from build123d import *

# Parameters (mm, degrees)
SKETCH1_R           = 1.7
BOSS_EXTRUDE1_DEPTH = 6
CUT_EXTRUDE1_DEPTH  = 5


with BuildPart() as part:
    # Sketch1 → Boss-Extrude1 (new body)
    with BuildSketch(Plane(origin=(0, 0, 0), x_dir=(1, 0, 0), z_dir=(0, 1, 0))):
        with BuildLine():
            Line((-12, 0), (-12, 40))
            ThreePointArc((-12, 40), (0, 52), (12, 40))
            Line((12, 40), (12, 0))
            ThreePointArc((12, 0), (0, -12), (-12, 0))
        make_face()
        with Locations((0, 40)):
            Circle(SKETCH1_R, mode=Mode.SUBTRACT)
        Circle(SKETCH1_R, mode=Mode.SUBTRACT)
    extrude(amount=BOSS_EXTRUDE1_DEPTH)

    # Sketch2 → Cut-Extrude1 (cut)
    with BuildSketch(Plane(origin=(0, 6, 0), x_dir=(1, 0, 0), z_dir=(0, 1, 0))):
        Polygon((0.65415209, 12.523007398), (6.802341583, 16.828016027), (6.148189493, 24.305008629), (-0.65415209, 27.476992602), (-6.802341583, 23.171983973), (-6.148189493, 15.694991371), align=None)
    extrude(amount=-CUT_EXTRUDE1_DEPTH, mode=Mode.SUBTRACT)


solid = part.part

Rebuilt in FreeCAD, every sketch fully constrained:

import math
import FreeCAD as App
import Part
import Sketcher
from FreeCAD import Vector
Q = App.Units.Quantity

doc = App.newDocument("Part")
body = doc.addObject("PartDesign::Body", "Body")

# Sketch on XZ plane
sketch1 = body.newObject("Sketcher::SketchObject", "Sketch")
sketch1.AttachmentSupport = (doc.getObject("XZ_Plane"), [""])
sketch1.MapMode = "FlatFace"
sketch1.addGeometry(Part.LineSegment(Vector(-12, -40, 0), Vector(-12, 0, 0)), False)
sketch1.addGeometry(Part.ArcOfCircle(Part.Circle(Vector(0, 0, 0), Vector(0, 0, 1), 12), math.radians(0), math.radians(180)), False)
sketch1.addGeometry(Part.LineSegment(Vector(12, 0, 0), Vector(12, -40, 0)), False)
sketch1.addGeometry(Part.ArcOfCircle(Part.Circle(Vector(0, -40, 0), Vector(0, 0, 1), 12), math.radians(180), math.radians(360)), False)
sketch1.addGeometry(Part.Circle(Vector(0, 0, 0), Vector(0, 0, 1), 1.7), False)
sketch1.addGeometry(Part.Circle(Vector(0, -40, 0), Vector(0, 0, 1), 1.7), False)
sketch1.addConstraint(Sketcher.Constraint("Tangent", 0, 2, 1, 2))
sketch1.addConstraint(Sketcher.Constraint("Tangent", 1, 1, 2, 1))
sketch1.addConstraint(Sketcher.Constraint("Tangent", 2, 2, 3, 2))
sketch1.addConstraint(Sketcher.Constraint("Tangent", 3, 1, 0, 1))
sketch1.addConstraint(Sketcher.Constraint("Vertical", 0))
sketch1.addConstraint(Sketcher.Constraint("Vertical", 2))
sketch1.addConstraint(Sketcher.Constraint("Coincident", 1, 3, -1, 1))
sketch1.addConstraint(Sketcher.Constraint("Coincident", 4, 3, -1, 1))
sketch1.addConstraint(Sketcher.Constraint("Coincident", 5, 3, 3, 3))
sketch1.addConstraint(Sketcher.Constraint("Equal", 4, 5))
sketch1.addConstraint(Sketcher.Constraint("Radius", 1, 12.0))
sketch1.addConstraint(Sketcher.Constraint("Diameter", 4, 3.4))
sketch1.addConstraint(Sketcher.Constraint("DistanceY", 0, 1, 0, 2, 40.0))
pad1 = body.newObject("PartDesign::Pad", "Pad")
pad1.Profile = sketch1
pad1.Length = 6
pad1.Reversed = True

# Sketch on XZ plane
sketch2 = body.newObject("Sketcher::SketchObject", "Sketch001")
sketch2.AttachmentSupport = (doc.getObject("XZ_Plane"), [""])
sketch2.MapMode = "FlatFace"
sketch2.AttachmentOffset = App.Placement(Vector(0, 0, -6), App.Rotation())
sketch2.addGeometry(Part.LineSegment(Vector(1, -13, 0), Vector(7, -17, 0)), False)
sketch2.addGeometry(Part.LineSegment(Vector(7, -17, 0), Vector(6, -24, 0)), False)
sketch2.addGeometry(Part.LineSegment(Vector(6, -24, 0), Vector(-1, -27, 0)), False)
sketch2.addGeometry(Part.LineSegment(Vector(-1, -27, 0), Vector(-7, -23, 0)), False)
sketch2.addGeometry(Part.LineSegment(Vector(-7, -23, 0), Vector(-6, -16, 0)), False)
sketch2.addGeometry(Part.LineSegment(Vector(-6, -16, 0), Vector(1, -13, 0)), False)
sketch2.addConstraint(Sketcher.Constraint("Coincident", 0, 2, 1, 1))
sketch2.addConstraint(Sketcher.Constraint("Coincident", 1, 2, 2, 1))
sketch2.addConstraint(Sketcher.Constraint("Coincident", 2, 2, 3, 1))
sketch2.addConstraint(Sketcher.Constraint("Coincident", 3, 2, 4, 1))
sketch2.addConstraint(Sketcher.Constraint("Coincident", 4, 2, 5, 1))
sketch2.addConstraint(Sketcher.Constraint("Coincident", 5, 2, 0, 1))
sketch2.addConstraint(Sketcher.Constraint("Parallel", 0, 3))
sketch2.addConstraint(Sketcher.Constraint("Parallel", 1, 4))
sketch2.addConstraint(Sketcher.Constraint("Parallel", 2, 5))
sketch2.addConstraint(Sketcher.Constraint("Equal", 0, 1))
sketch2.addConstraint(Sketcher.Constraint("Equal", 1, 2))
sketch2.addConstraint(Sketcher.Constraint("Equal", 2, 3))
sketch2.addConstraint(Sketcher.Constraint("Angle", 0, Q("-35 deg")))
sketch2.addConstraint(Sketcher.Constraint("Angle", 1, Q("-95 deg")))
sketch2.addConstraint(Sketcher.Constraint("Angle", 2, Q("-155 deg")))
sketch2.addConstraint(Sketcher.Constraint("DistanceY", 2, 2, 4, 2, 11.782001))
sketch2.addConstraint(Sketcher.Constraint("DistanceX", -1, 1, 0, 2, 6.802342))
sketch2.addConstraint(Sketcher.Constraint("DistanceY", 1, 2, -1, 1, 24.305009))
pocket1 = body.newObject("PartDesign::Pocket", "Pocket")
pocket1.Profile = sketch2
pocket1.Length = 5
pocket1.Reversed = True

doc.recompute()
